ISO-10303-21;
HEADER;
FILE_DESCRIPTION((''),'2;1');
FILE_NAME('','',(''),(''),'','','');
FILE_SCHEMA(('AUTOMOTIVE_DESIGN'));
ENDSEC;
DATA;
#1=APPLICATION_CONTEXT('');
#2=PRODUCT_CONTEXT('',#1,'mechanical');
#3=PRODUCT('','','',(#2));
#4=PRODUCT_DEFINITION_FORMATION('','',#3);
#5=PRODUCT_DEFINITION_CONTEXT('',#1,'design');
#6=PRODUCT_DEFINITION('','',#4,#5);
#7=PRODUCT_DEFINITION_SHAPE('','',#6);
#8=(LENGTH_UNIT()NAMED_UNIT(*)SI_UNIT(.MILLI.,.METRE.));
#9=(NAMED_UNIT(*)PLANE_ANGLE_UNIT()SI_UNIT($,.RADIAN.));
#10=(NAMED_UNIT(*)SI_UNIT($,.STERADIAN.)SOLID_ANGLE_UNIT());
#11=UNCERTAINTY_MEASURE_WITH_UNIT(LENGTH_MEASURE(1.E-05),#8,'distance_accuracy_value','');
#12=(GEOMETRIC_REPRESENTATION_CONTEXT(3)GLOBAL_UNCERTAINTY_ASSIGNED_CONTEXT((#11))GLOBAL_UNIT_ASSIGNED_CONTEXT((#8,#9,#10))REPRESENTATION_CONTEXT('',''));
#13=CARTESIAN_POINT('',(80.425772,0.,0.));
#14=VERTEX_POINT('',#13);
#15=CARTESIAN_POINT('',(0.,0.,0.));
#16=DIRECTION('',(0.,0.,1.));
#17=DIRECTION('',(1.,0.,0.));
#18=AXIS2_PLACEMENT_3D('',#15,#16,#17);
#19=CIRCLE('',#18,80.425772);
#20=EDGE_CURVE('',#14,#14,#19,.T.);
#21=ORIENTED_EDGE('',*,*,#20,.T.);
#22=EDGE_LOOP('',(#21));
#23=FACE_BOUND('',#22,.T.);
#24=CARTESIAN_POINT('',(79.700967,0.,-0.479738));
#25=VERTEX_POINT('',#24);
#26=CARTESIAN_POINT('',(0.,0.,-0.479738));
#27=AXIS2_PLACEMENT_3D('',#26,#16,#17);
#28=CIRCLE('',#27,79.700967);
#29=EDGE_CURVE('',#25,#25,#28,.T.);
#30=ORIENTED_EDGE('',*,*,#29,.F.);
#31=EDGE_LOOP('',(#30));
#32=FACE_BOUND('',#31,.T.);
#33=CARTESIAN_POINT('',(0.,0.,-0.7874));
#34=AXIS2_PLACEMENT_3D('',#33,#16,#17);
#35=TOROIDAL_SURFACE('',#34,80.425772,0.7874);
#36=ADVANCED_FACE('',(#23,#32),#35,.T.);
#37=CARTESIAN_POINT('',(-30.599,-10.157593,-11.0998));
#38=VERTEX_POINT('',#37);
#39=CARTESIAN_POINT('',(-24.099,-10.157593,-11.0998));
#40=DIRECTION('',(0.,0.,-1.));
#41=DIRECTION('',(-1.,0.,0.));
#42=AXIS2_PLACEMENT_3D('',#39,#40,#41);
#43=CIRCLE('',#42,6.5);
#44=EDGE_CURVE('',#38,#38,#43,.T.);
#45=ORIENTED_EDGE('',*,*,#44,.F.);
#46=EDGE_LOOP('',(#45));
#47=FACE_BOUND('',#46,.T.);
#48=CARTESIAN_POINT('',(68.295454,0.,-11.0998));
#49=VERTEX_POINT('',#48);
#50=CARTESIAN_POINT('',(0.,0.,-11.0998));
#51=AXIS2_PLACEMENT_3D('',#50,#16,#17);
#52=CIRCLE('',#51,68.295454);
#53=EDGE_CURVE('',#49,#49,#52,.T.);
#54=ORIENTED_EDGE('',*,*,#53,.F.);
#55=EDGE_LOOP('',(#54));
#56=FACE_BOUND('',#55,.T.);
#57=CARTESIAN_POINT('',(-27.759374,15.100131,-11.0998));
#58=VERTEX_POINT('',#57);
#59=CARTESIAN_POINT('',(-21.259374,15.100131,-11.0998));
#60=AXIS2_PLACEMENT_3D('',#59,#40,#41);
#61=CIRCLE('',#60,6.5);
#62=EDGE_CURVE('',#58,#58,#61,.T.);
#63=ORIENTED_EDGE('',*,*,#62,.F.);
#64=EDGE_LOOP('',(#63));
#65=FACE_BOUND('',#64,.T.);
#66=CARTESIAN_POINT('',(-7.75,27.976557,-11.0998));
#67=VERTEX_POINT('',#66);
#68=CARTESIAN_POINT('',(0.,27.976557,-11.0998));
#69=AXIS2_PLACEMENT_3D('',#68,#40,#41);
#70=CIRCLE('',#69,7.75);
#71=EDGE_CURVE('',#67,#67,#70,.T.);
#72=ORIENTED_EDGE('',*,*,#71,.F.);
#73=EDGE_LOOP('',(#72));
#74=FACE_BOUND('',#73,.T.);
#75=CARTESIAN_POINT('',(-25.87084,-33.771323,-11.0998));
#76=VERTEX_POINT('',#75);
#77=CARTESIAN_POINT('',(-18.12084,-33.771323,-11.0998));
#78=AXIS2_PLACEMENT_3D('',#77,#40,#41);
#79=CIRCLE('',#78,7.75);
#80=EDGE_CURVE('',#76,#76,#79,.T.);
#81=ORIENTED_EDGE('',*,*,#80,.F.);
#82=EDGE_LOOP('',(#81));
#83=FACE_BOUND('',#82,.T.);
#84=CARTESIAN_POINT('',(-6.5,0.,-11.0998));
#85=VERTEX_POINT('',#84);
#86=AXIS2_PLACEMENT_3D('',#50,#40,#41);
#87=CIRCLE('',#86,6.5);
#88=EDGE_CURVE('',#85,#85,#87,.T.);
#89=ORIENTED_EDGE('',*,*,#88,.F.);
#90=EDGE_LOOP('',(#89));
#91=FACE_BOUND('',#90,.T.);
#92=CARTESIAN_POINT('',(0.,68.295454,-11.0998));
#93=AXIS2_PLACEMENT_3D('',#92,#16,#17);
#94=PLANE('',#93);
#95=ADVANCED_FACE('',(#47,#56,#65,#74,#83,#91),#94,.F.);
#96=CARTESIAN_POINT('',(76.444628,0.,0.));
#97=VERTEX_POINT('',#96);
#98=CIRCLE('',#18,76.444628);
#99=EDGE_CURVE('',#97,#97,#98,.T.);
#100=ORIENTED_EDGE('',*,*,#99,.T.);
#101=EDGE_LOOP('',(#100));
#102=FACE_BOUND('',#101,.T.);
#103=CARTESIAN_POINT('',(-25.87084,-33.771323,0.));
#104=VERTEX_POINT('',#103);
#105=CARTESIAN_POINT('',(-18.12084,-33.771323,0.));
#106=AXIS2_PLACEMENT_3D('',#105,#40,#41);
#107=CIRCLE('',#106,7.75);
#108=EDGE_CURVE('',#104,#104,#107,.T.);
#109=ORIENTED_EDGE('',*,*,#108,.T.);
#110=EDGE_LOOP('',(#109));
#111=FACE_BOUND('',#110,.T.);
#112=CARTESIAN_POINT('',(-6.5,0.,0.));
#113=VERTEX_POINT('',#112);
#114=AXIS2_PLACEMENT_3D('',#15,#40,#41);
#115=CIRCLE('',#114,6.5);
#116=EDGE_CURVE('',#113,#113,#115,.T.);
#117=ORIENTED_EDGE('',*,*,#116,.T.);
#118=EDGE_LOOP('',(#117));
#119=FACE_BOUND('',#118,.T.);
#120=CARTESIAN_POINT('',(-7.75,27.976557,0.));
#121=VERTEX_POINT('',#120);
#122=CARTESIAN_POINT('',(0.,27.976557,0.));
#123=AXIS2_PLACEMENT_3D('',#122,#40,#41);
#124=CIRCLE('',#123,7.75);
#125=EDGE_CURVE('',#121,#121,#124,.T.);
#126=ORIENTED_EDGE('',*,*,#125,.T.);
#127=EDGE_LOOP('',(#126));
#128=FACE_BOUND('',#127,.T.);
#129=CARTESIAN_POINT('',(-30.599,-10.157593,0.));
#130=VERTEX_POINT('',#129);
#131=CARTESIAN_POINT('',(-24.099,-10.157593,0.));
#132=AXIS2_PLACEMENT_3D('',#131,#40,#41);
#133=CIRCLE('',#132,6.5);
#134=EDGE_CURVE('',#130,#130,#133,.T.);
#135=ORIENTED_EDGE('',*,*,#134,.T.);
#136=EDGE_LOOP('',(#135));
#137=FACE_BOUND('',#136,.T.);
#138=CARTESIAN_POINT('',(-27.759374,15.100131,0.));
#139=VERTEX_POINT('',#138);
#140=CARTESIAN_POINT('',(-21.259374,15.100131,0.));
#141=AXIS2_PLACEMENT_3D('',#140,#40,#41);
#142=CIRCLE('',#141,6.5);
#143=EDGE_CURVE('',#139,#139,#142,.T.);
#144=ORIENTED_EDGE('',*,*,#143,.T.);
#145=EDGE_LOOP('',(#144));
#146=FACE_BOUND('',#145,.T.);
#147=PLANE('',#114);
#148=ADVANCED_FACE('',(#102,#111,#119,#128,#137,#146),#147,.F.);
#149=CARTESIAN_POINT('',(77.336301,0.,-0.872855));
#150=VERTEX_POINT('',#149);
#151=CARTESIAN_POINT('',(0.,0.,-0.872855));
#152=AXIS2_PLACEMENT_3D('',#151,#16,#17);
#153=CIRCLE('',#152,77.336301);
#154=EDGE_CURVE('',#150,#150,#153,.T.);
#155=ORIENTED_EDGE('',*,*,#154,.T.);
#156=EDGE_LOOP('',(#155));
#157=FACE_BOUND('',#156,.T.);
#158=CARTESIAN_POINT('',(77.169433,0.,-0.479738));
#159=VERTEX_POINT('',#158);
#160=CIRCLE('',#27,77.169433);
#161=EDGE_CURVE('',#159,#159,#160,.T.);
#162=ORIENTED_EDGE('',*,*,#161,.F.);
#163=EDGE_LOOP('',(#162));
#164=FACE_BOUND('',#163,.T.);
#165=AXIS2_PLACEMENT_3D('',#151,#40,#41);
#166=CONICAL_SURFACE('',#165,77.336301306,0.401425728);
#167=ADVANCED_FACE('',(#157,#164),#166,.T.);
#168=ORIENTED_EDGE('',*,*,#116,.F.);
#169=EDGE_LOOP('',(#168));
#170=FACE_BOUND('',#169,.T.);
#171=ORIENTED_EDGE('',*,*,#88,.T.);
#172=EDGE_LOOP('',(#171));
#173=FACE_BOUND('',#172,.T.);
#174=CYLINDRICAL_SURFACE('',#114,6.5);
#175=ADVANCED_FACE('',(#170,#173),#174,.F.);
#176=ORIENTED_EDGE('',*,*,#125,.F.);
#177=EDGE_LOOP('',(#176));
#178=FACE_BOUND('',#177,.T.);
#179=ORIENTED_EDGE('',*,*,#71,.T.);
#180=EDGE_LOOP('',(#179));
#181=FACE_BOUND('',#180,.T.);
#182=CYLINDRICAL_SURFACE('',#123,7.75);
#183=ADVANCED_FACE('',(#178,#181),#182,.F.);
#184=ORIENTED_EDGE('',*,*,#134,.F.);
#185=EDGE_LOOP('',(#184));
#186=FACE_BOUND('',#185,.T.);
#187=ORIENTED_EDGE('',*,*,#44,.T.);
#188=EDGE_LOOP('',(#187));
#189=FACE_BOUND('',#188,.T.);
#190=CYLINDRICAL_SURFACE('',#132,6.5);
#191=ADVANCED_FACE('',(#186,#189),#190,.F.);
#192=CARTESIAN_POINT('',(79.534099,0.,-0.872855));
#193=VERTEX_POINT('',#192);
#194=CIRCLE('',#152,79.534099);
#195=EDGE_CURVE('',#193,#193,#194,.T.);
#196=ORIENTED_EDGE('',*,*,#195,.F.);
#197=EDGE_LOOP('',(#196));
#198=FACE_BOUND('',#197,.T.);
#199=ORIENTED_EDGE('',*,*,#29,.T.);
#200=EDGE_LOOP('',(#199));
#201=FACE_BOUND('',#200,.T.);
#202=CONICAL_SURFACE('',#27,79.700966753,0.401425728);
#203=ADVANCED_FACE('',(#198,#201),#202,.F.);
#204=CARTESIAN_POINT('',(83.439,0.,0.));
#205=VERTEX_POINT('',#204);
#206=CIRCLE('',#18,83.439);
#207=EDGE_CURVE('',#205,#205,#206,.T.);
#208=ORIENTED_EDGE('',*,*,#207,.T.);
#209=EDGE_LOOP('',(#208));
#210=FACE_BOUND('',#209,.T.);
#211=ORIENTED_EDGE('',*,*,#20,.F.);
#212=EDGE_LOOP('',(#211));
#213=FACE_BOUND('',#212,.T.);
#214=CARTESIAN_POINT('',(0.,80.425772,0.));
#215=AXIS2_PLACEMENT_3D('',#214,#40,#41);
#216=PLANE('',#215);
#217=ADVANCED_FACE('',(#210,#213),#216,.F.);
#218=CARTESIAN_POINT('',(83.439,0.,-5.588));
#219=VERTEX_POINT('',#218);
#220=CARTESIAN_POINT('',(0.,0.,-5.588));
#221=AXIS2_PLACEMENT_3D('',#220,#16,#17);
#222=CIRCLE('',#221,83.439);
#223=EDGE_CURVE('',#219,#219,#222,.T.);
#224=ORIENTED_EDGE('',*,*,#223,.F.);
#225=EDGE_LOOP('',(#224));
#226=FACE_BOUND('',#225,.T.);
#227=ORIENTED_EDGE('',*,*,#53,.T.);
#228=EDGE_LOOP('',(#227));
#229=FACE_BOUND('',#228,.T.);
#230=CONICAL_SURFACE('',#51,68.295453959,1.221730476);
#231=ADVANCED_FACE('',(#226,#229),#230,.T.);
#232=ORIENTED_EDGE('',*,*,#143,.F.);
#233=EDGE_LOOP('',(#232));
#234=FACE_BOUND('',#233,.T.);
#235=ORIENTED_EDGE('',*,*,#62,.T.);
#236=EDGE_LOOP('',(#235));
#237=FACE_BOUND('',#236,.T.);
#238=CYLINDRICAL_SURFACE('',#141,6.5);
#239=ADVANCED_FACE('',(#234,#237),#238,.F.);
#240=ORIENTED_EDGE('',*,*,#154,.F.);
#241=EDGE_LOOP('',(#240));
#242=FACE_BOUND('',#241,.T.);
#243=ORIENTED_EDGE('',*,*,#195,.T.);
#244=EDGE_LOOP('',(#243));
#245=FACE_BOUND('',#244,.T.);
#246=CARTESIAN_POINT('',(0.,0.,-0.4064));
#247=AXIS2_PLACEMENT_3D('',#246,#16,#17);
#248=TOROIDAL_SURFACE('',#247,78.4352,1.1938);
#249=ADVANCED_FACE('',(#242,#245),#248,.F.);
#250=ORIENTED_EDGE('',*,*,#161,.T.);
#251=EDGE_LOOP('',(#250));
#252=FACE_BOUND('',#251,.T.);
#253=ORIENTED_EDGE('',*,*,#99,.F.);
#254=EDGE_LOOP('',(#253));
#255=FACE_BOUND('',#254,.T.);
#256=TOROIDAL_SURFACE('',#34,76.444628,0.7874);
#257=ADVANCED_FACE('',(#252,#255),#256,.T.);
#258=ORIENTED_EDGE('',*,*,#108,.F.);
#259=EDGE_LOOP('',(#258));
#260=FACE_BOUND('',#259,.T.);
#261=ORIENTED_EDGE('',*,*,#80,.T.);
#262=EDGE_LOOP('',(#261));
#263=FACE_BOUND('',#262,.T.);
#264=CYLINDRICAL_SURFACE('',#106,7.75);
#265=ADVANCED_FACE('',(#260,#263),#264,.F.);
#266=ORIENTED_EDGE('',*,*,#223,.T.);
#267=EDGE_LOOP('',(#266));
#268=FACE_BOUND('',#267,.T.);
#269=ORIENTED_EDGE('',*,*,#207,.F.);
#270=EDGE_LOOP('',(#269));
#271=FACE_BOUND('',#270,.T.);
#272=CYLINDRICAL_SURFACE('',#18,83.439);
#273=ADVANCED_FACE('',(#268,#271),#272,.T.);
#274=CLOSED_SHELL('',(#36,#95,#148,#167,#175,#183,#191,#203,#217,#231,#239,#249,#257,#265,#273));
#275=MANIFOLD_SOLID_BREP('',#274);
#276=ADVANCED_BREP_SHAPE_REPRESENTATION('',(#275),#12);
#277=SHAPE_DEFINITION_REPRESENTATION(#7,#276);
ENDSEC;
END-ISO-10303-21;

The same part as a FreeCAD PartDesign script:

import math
import FreeCAD as App
import Part
import Sketcher
Q = App.Units.Quantity

doc = App.newDocument("Part")
params = doc.addObject("Spreadsheet::Sheet", "Params")
for row, (alias, value) in enumerate([
    ("sketch1_radius", "0.031 in"),
    ("sketch1_radius2", "0.047 in"),
    ("sketch1_height", "0.22 in"),
    ("sketch1_height2", "0.437 in"),
    ("revolution_angle", "360 deg"),
], start=1):
    params.set(f"A{row}", alias)
    params.set(f"B{row}", "=" + value)
    params.setAlias(f"B{row}", alias)

body = doc.addObject("PartDesign::Body", "Body")

sketch1 = body.newObject("Sketcher::SketchObject", "Sketch")
sketch1.AttachmentSupport = (doc.getObject("YZ_Plane"), [""])
sketch1.MapMode = "FlatFace"
sketch1.addGeometry([
    Part.LineSegment(App.Vector(76.44, 0, 0), App.Vector(0, 0, 0)),
    Part.LineSegment(App.Vector(0, 0, 0), App.Vector(0, -11.1, 0)),
    Part.LineSegment(App.Vector(0, -11.1, 0), App.Vector(68.3, -11.1, 0)),
    Part.LineSegment(App.Vector(68.3, -11.1, 0), App.Vector(83.44, -5.59, 0)),
    Part.LineSegment(App.Vector(83.44, -5.59, 0), App.Vector(83.44, 0, 0)),
    Part.LineSegment(App.Vector(83.44, 0, 0), App.Vector(80.43, 0, 0)),
    Part.ArcOfCircle(Part.Circle(App.Vector(80.43, -0.79, 0), App.Vector(0, 0, 1), 0.79), math.radians(90), math.radians(157)),
    Part.LineSegment(App.Vector(79.7, -0.48, 0), App.Vector(79.53, -0.87, 0)),
    Part.ArcOfCircle(Part.Circle(App.Vector(78.44, -0.41, 0), App.Vector(0, 0, 1), 1.19), math.radians(-157), math.radians(-23)),
    Part.LineSegment(App.Vector(77.34, -0.87, 0), App.Vector(77.17, -0.48, 0)),
    Part.ArcOfCircle(Part.Circle(App.Vector(76.44, -0.79, 0), App.Vector(0, 0, 1), 0.79), math.radians(23), math.radians(90)),
], False)
sketch1.addConstraint([
    Sketcher.Constraint("Coincident", 0, 2, 1, 1),
    Sketcher.Constraint("Coincident", 1, 2, 2, 1),
    Sketcher.Constraint("Coincident", 2, 2, 3, 1),
    Sketcher.Constraint("Coincident", 3, 2, 4, 1),
    Sketcher.Constraint("Coincident", 4, 2, 5, 1),
    Sketcher.Constraint("Tangent", 5, 2, 6, 1),
    Sketcher.Constraint("Tangent", 6, 2, 7, 1),
    Sketcher.Constraint("Tangent", 7, 2, 8, 2),
    Sketcher.Constraint("Tangent", 8, 1, 9, 1),
    Sketcher.Constraint("Tangent", 9, 2, 10, 1),
    Sketcher.Constraint("Tangent", 10, 2, 0, 1),
    Sketcher.Constraint("Horizontal", 0),
    Sketcher.Constraint("Vertical", 1),
    Sketcher.Constraint("Horizontal", 2),
    Sketcher.Constraint("Vertical", 4),
    Sketcher.Constraint("Horizontal", 5),
    Sketcher.Constraint("Coincident", 0, 2, -1, 1),
    Sketcher.Constraint("Equal", 6, 10),
    Sketcher.Constraint("PointOnObject", 4, 2, -1),
    Sketcher.Constraint("Horizontal", 7, 2, 8, 1),
    Sketcher.Constraint("Angle", 3, Q("20 deg")),
    Sketcher.Constraint("Angle", 7, Q("-113 deg")),
    Sketcher.Constraint("Radius", 6, Q("0.031 in")),
    Sketcher.Constraint("Radius", 8, Q("0.047 in")),
    Sketcher.Constraint("DistanceY", 4, 1, 4, 2, Q("0.22 in")),
    Sketcher.Constraint("DistanceY", 1, 2, 1, 1, Q("0.437 in")),
    Sketcher.Constraint("DistanceX", -1, 1, 8, 3, Q("3.088 in")),
    Sketcher.Constraint("DistanceY", 8, 3, -1, 1, Q("0.016 in")),
    Sketcher.Constraint("DistanceX", -1, 1, 3, 2, Q("3.285 in")),
])
sketch1.setExpression("Constraints[22]", "Params.sketch1_radius")
sketch1.setExpression("Constraints[23]", "Params.sketch1_radius2")
sketch1.setExpression("Constraints[24]", "Params.sketch1_height")
sketch1.setExpression("Constraints[25]", "Params.sketch1_height2")
revolution = body.newObject("PartDesign::Revolution", "Revolution")
revolution.Profile = sketch1
revolution.ReferenceAxis = (sketch1, ["V_Axis"])
revolution.setExpression("Angle", "Params.revolution_angle")

sketch2 = body.newObject("Sketcher::SketchObject", "Sketch001")
sketch2.AttachmentSupport = (doc.getObject("XY_Plane"), [""])
sketch2.MapMode = "FlatFace"
sketch2.AttachmentOffset = App.Placement(App.Vector(0, 0, -0.437 * 25.4), App.Rotation())
sketch2.addGeometry([
    Part.Circle(App.Vector(0, 0, 0), App.Vector(0, 0, 1), 6),
    Part.Circle(App.Vector(0, 28, 0), App.Vector(0, 0, 1), 8),
    Part.Circle(App.Vector(-24, -10, 0), App.Vector(0, 0, 1), 6),
    Part.Circle(App.Vector(-21, 15, 0), App.Vector(0, 0, 1), 6),
    Part.Circle(App.Vector(-18, -34, 0), App.Vector(0, 0, 1), 8),
], False)
sketch2.addConstraint([
    Sketcher.Constraint("Coincident", 0, 3, -1, 1),
    Sketcher.Constraint("Equal", 0, 2),
    Sketcher.Constraint("Equal", 2, 3),
    Sketcher.Constraint("Equal", 1, 4),
    Sketcher.Constraint("PointOnObject", 1, 3, -2),
    Sketcher.Constraint("Diameter", 0, Q("13 mm")),
    Sketcher.Constraint("Diameter", 1, Q("15.5 mm")),
    Sketcher.Constraint("DistanceX", 2, 3, -1, 1, Q("24.099 mm")),
    Sketcher.Constraint("DistanceY", -1, 1, 3, 3, Q("15.100131 mm")),
    Sketcher.Constraint("DistanceX", 4, 3, -1, 1, Q("18.12084 mm")),
    Sketcher.Constraint("DistanceY", 2, 3, 1, 3, Q("38.13415 mm")),
    Sketcher.Constraint("DistanceY", 4, 3, 2, 3, Q("23.61373 mm")),
    Sketcher.Constraint("DistanceY", -1, 1, 1, 3, Q("27.976557 mm")),
    Sketcher.Constraint("DistanceX", 3, 3, -1, 1, Q("21.259374 mm")),
])
pocket1 = body.newObject("PartDesign::Pocket", "Pocket")
pocket1.Profile = sketch2
pocket1.Type = "ThroughAll"
pocket1.Reversed = True

doc.recompute()
